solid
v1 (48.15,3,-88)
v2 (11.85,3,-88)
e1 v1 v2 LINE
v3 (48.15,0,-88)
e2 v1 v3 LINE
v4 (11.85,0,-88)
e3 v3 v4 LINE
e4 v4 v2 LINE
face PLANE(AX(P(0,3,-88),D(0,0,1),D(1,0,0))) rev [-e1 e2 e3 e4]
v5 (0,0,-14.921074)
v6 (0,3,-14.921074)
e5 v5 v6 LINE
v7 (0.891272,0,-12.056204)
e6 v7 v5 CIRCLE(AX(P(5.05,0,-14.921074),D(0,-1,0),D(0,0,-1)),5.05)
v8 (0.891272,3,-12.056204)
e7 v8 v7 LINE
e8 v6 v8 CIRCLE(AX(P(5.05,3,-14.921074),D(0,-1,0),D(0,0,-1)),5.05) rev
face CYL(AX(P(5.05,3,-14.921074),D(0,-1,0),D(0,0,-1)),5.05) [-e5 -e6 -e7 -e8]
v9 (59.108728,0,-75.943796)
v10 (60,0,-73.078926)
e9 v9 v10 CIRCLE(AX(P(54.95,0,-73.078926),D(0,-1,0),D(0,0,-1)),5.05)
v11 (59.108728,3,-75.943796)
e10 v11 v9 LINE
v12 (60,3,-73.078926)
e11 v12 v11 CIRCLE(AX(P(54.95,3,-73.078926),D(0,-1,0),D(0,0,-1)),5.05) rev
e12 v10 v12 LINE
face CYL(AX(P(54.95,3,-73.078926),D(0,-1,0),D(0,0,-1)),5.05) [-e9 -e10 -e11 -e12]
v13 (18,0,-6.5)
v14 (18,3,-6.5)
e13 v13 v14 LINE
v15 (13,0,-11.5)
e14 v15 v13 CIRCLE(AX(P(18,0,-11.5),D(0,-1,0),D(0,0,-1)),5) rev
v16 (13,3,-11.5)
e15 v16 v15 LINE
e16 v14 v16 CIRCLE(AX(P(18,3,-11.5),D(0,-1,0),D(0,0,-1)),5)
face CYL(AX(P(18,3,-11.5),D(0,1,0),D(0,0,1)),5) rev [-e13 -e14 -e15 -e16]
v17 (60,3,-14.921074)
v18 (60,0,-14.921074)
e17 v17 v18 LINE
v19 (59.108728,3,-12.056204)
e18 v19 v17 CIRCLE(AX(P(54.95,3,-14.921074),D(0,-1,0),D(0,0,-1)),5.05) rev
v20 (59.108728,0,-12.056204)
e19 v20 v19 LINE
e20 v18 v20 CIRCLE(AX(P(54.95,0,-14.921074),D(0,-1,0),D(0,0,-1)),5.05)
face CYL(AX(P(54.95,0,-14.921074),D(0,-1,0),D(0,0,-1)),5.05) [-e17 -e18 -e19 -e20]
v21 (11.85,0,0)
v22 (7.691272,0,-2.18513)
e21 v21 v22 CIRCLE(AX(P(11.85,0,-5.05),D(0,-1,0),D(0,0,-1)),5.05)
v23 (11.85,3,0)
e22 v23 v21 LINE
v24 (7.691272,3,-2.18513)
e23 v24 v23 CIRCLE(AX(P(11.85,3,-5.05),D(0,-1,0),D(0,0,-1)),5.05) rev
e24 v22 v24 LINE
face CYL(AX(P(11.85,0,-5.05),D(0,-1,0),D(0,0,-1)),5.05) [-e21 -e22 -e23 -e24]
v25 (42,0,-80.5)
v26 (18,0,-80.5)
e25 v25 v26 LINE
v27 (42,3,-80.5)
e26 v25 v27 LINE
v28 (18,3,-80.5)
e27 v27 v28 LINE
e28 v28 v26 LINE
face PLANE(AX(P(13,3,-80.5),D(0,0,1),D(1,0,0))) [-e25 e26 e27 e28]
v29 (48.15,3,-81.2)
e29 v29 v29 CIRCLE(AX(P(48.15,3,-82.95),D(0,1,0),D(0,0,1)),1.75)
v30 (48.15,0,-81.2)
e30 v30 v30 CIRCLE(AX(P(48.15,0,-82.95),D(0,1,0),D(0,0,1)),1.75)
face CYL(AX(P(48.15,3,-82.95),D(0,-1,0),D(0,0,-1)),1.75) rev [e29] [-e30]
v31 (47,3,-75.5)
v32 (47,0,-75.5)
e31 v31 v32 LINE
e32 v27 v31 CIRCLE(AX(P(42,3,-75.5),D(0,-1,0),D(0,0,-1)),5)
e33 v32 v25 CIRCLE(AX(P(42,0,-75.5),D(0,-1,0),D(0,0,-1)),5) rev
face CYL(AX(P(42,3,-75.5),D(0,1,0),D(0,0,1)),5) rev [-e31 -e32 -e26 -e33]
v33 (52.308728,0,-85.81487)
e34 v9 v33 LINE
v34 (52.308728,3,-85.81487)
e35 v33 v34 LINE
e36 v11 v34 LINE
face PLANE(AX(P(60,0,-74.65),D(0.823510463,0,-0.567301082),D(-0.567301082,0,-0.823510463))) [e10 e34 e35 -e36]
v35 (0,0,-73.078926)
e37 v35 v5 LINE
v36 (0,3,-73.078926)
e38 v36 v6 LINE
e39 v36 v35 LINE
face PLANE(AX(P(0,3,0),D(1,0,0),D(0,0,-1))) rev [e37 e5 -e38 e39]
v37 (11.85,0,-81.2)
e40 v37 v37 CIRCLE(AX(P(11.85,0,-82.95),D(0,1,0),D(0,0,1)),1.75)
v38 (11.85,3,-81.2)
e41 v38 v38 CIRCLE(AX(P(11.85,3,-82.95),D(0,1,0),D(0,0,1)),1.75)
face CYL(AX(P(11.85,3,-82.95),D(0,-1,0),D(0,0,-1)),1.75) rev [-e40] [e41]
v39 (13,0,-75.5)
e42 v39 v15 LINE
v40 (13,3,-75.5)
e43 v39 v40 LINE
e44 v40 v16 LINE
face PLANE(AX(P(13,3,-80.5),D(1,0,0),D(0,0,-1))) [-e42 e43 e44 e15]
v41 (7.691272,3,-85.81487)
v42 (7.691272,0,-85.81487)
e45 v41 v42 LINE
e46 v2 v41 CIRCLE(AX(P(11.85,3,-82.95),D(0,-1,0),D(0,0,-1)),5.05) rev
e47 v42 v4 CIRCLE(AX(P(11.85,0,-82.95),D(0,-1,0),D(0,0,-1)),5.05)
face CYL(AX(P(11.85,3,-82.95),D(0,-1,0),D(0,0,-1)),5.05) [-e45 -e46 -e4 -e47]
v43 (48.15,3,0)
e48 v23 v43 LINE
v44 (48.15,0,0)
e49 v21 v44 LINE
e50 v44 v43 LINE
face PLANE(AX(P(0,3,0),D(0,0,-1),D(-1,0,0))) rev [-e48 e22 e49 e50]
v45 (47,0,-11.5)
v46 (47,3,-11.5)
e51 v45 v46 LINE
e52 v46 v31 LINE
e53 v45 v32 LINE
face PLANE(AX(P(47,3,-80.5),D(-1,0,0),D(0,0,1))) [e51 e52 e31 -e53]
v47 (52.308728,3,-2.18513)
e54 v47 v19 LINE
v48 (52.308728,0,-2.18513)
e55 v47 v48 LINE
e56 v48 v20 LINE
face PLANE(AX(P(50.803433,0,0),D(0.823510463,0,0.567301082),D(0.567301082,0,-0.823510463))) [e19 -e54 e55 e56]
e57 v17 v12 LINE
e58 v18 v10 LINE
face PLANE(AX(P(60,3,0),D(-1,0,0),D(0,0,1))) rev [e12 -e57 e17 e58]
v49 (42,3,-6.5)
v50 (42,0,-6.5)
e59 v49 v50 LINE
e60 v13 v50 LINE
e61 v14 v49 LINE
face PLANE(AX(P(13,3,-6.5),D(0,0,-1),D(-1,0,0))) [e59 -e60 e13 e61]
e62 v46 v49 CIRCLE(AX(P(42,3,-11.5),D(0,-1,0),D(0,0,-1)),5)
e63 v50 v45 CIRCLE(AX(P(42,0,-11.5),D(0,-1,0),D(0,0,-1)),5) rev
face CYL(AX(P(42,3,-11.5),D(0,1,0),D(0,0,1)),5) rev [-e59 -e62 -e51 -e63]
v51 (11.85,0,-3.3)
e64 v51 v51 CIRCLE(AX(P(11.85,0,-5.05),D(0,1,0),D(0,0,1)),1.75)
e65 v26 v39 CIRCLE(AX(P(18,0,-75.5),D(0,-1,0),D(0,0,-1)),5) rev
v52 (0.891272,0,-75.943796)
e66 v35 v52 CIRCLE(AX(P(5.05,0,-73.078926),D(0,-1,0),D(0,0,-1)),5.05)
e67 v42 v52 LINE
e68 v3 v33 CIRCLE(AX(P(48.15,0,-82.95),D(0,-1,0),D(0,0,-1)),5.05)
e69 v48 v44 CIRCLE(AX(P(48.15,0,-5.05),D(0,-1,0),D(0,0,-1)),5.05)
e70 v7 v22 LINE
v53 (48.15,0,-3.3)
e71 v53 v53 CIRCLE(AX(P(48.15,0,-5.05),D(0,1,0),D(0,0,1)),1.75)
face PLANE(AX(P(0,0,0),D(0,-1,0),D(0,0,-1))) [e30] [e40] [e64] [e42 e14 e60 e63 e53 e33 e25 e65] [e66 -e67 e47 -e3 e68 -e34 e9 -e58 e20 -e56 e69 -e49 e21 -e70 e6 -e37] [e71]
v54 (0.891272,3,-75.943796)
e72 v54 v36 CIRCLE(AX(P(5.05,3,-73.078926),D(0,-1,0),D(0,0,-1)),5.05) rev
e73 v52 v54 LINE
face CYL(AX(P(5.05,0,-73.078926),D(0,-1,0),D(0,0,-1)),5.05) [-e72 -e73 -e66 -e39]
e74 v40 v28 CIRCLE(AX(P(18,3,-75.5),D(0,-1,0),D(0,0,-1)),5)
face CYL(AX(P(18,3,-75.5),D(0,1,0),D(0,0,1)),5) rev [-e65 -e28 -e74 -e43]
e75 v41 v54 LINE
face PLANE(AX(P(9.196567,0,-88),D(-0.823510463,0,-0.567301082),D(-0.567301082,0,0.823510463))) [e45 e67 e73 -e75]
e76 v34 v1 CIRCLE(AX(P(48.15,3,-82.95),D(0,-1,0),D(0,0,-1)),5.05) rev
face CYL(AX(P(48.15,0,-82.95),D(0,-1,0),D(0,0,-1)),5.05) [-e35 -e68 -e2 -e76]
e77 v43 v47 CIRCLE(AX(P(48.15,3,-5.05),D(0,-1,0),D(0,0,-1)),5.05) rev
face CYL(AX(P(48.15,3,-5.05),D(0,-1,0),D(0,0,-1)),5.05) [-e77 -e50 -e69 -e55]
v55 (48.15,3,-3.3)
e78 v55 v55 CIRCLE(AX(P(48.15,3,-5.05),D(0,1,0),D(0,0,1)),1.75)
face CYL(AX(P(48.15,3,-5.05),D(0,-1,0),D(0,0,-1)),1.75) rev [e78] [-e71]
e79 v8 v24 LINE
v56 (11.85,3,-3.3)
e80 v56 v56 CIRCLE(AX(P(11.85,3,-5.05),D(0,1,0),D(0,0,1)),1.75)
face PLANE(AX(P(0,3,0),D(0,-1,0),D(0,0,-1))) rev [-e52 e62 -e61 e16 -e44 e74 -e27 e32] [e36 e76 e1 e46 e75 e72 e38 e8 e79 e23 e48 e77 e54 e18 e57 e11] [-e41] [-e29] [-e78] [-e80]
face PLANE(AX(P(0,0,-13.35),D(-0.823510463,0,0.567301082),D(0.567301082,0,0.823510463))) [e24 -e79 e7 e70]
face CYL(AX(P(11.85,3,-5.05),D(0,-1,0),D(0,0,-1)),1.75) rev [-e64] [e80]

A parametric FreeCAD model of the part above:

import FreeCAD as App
import Part
import Sketcher

V = App.Vector


def edges_at(feature, points):
    """Names of the edges that pass closest to the given points."""
    edges = feature.Shape.Edges
    near = lambda p: min(range(len(edges)), key=lambda i: edges[i].distToShape(Part.Vertex(*p))[0])
    return sorted({f"Edge{near(p) + 1}" for p in points})

doc = App.newDocument("Part")
body = doc.addObject("PartDesign::Body", "Body")

sketch1 = doc.addObject("Sketcher::SketchObject", "Sketch")
body.addObject(sketch1)
sketch1.AttachmentSupport = (doc.XZ_Plane, [""])
sketch1.MapMode = "FlatFace"
sketch1.addGeometry(Part.LineSegment(V(0, -88, 0), V(0, 0, 0)), False)
sketch1.addGeometry(Part.LineSegment(V(0, 0, 0), V(60, 0, 0)), False)
sketch1.addGeometry(Part.LineSegment(V(60, 0, 0), V(60, -88, 0)), False)
sketch1.addGeometry(Part.LineSegment(V(60, -88, 0), V(0, -88, 0)), False)
sketch1.addGeometry(Part.Circle(V(11.8, -5, 0), V(0, 0, 1), 1.8), False)
sketch1.addGeometry(Part.Circle(V(48.1, -5, 0), V(0, 0, 1), 1.8), False)
sketch1.addGeometry(Part.LineSegment(V(47, -6.5, 0), V(13, -6.5, 0)), False)
sketch1.addGeometry(Part.LineSegment(V(13, -6.5, 0), V(13, -80.5, 0)), False)
sketch1.addGeometry(Part.LineSegment(V(13, -80.5, 0), V(47, -80.5, 0)), False)
sketch1.addGeometry(Part.LineSegment(V(47, -80.5, 0), V(47, -6.5, 0)), False)
sketch1.addGeometry(Part.Circle(V(11.8, -83, 0), V(0, 0, 1), 1.8), False)
sketch1.addGeometry(Part.Circle(V(48.1, -83, 0), V(0, 0, 1), 1.8), False)
sketch1.addConstraint(Sketcher.Constraint("Coincident", 0, 2, 1, 1))
sketch1.addConstraint(Sketcher.Constraint("Coincident", 1, 2, 2, 1))
sketch1.addConstraint(Sketcher.Constraint("Coincident", 2, 2, 3, 1))
sketch1.addConstraint(Sketcher.Constraint("Coincident", 3, 2, 0, 1))
sketch1.addConstraint(Sketcher.Constraint("Coincident", 6, 2, 7, 1))
sketch1.addConstraint(Sketcher.Constraint("Coincident", 7, 2, 8, 1))
sketch1.addConstraint(Sketcher.Constraint("Coincident", 8, 2, 9, 1))
sketch1.addConstraint(Sketcher.Constraint("Coincident", 9, 2, 6, 1))
sketch1.addConstraint(Sketcher.Constraint("Vertical", 0))
sketch1.addConstraint(Sketcher.Constraint("Horizontal", 1))
sketch1.addConstraint(Sketcher.Constraint("Vertical", 2))
sketch1.addConstraint(Sketcher.Constraint("Horizontal", 3))
sketch1.addConstraint(Sketcher.Constraint("Horizontal", 6))
sketch1.addConstraint(Sketcher.Constraint("Vertical", 7))
sketch1.addConstraint(Sketcher.Constraint("Horizontal", 8))
sketch1.addConstraint(Sketcher.Constraint("Vertical", 9))
sketch1.addConstraint(Sketcher.Constraint("Coincident", 0, 2, -1, 1))
sketch1.addConstraint(Sketcher.Constraint("Equal", 4, 5))
sketch1.addConstraint(Sketcher.Constraint("Equal", 5, 10))
sketch1.addConstraint(Sketcher.Constraint("Equal", 10, 11))
sketch1.addConstraint(Sketcher.Constraint("Horizontal", 4, 3, 5, 3))
sketch1.addConstraint(Sketcher.Constraint("Horizontal", 10, 3, 11, 3))
sketch1.addConstraint(Sketcher.Constraint("Vertical", 4, 3, 10, 3))
sketch1.addConstraint(Sketcher.Constraint("Vertical", 5, 3, 11, 3))
sketch1.addConstraint(Sketcher.Constraint("Diameter", 4, 3.5))
sketch1.addConstraint(Sketcher.Constraint("DistanceX", 1, 1, 1, 2, 60.0))
sketch1.addConstraint(Sketcher.Constraint("DistanceX", 6, 2, 6, 1, 34.0))
sketch1.addConstraint(Sketcher.Constraint("DistanceY", 0, 1, 0, 2, 88.0))
sketch1.addConstraint(Sketcher.Constraint("DistanceY", 7, 2, 7, 1, 74.0))
sketch1.addConstraint(Sketcher.Constraint("DistanceX", -1, 1, 6, 2, 13.0))
sketch1.addConstraint(Sketcher.Constraint("DistanceY", 6, 2, -1, 1, 6.5))
sketch1.addConstraint(Sketcher.Constraint("DistanceX", 4, 3, 5, 3, 36.3))
sketch1.addConstraint(Sketcher.Constraint("DistanceY", 10, 3, 4, 3, 77.9))
sketch1.addConstraint(Sketcher.Constraint("DistanceX", -1, 1, 4, 3, 11.85))
sketch1.addConstraint(Sketcher.Constraint("DistanceY", 4, 3, -1, 1, 5.05))
pad1 = doc.addObject("PartDesign::Pad", "Pad")
body.addObject(pad1)
pad1.Profile = sketch1
pad1.Length = 3
pad1.Reversed = True
doc.recompute()

fillet = doc.addObject("PartDesign::Fillet", "Fillet")
body.addObject(fillet)
fillet.Base = (pad1, edges_at(pad1, [
    (13, 1.5, -80.5),
    (13, 1.5, -6.5),
    (47, 1.5, -6.5),
    (47, 1.5, -80.5),
]))
fillet.Radius = 5

sketch2 = doc.addObject("Sketcher::SketchObject", "Sketch001")
body.addObject(sketch2)
sketch2.AttachmentSupport = (doc.XZ_Plane, [""])
sketch2.MapMode = "FlatFace"
sketch2.AttachmentOffset = App.Placement(V(0, 0, -3), App.Rotation())
sketch2.addGeometry(Part.LineSegment(V(-1, -89, 0), V(-1, 1, 0)), False)
sketch2.addGeometry(Part.LineSegment(V(-1, 1, 0), V(61, 1, 0)), False)
sketch2.addGeometry(Part.LineSegment(V(61, 1, 0), V(61, -89, 0)), False)
sketch2.addGeometry(Part.LineSegment(V(61, -89, 0), V(-1, -89, 0)), False)
sketch2.addGeometry(Part.LineSegment(V(0, -75, 0), V(9, -88, 0)), False)
sketch2.addGeometry(Part.LineSegment(V(9, -88, 0), V(51, -88, 0)), False)
sketch2.addGeometry(Part.LineSegment(V(51, -88, 0), V(60, -75, 0)), False)
sketch2.addGeometry(Part.LineSegment(V(60, -75, 0), V(60, -13, 0)), False)
sketch2.addGeometry(Part.LineSegment(V(60, -13, 0), V(51, 0, 0)), False)
sketch2.addGeometry(Part.LineSegment(V(51, 0, 0), V(9, 0, 0)), False)
sketch2.addGeometry(Part.LineSegment(V(9, 0, 0), V(0, -13, 0)), False)
sketch2.addGeometry(Part.LineSegment(V(0, -13, 0), V(0, -75, 0)), False)
sketch2.addConstraint(Sketcher.Constraint("Coincident", 0, 2, 1, 1))
sketch2.addConstraint(Sketcher.Constraint("Coincident", 1, 2, 2, 1))
sketch2.addConstraint(Sketcher.Constraint("Coincident", 2, 2, 3, 1))
sketch2.addConstraint(Sketcher.Constraint("Coincident", 3, 2, 0, 1))
sketch2.addConstraint(Sketcher.Constraint("Coincident", 4, 2, 5, 1))
sketch2.addConstraint(Sketcher.Constraint("Coincident", 5, 2, 6, 1))
sketch2.addConstraint(Sketcher.Constraint("Coincident", 6, 2, 7, 1))
sketch2.addConstraint(Sketcher.Constraint("Coincident", 7, 2, 8, 1))
sketch2.addConstraint(Sketcher.Constraint("Coincident", 8, 2, 9, 1))
sketch2.addConstraint(Sketcher.Constraint("Coincident", 9, 2, 10, 1))
sketch2.addConstraint(Sketcher.Constraint("Coincident", 10, 2, 11, 1))
sketch2.addConstraint(Sketcher.Constraint("Coincident", 11, 2, 4, 1))
sketch2.addConstraint(Sketcher.Constraint("Vertical", 0))
sketch2.addConstraint(Sketcher.Constraint("Horizontal", 1))
sketch2.addConstraint(Sketcher.Constraint("Vertical", 2))
sketch2.addConstraint(Sketcher.Constraint("Horizontal", 3))
sketch2.addConstraint(Sketcher.Constraint("Horizontal", 5))
sketch2.addConstraint(Sketcher.Constraint("Vertical", 7))
sketch2.addConstraint(Sketcher.Constraint("Horizontal", 9))
sketch2.addConstraint(Sketcher.Constraint("Vertical", 11))
sketch2.addConstraint(Sketcher.Constraint("PointOnObject", 8, 2, -1))
sketch2.addConstraint(Sketcher.Constraint("PointOnObject", 10, 2, -2))
sketch2.addConstraint(Sketcher.Constraint("Parallel", 4, 8))
sketch2.addConstraint(Sketcher.Constraint("Parallel", 6, 10))
sketch2.addConstraint(Sketcher.Constraint("Horizontal", 7, 2, 10, 2))
sketch2.addConstraint(Sketcher.Constraint("Horizontal", 6, 2, 11, 2))
sketch2.addConstraint(Sketcher.Constraint("Vertical", 5, 2, 8, 2))
sketch2.addConstraint(Sketcher.Constraint("Vertical", 4, 2, 9, 2))
sketch2.addConstraint(Sketcher.Constraint("DistanceX", 1, 1, 1, 2, 62.0))
sketch2.addConstraint(Sketcher.Constraint("DistanceY", 0, 1, 0, 2, 90.0))
sketch2.addConstraint(Sketcher.Constraint("DistanceY", 7, 1, 7, 2, 61.3))
sketch2.addConstraint(Sketcher.Constraint("DistanceX", 0, 2, -1, 1, 1.0))
sketch2.addConstraint(Sketcher.Constraint("DistanceY", -1, 1, 0, 2, 1.0))
sketch2.addConstraint(Sketcher.Constraint("DistanceY", 4, 2, -1, 1, 88.0))
sketch2.addConstraint(Sketcher.Constraint("DistanceX", -1, 1, 6, 2, 60.0))
sketch2.addConstraint(Sketcher.Constraint("DistanceX", 5, 1, 5, 2, 41.606865))
pocket1 = doc.addObject("PartDesign::Pocket", "Pocket")
body.addObject(pocket1)
pocket1.Profile = sketch2
pocket1.Type = "ThroughAll"
pocket1.Reversed = True
doc.recompute()

fillet2 = doc.addObject("PartDesign::Fillet", "Fillet001")
body.addObject(fillet2)
fillet2.Base = (pocket1, edges_at(pocket1, [
    (0, 1.5, -74.65),
    (9.197, 1.5, -88),
    (50.803, 1.5, -88),
    (60, 1.5, -74.65),
    (60, 1.5, -13.35),
    (50.803, 1.5, 0),
    (9.197, 1.5, 0),
    (0, 1.5, -13.35),
]))
fillet2.Radius = 5.05

doc.recompute()
